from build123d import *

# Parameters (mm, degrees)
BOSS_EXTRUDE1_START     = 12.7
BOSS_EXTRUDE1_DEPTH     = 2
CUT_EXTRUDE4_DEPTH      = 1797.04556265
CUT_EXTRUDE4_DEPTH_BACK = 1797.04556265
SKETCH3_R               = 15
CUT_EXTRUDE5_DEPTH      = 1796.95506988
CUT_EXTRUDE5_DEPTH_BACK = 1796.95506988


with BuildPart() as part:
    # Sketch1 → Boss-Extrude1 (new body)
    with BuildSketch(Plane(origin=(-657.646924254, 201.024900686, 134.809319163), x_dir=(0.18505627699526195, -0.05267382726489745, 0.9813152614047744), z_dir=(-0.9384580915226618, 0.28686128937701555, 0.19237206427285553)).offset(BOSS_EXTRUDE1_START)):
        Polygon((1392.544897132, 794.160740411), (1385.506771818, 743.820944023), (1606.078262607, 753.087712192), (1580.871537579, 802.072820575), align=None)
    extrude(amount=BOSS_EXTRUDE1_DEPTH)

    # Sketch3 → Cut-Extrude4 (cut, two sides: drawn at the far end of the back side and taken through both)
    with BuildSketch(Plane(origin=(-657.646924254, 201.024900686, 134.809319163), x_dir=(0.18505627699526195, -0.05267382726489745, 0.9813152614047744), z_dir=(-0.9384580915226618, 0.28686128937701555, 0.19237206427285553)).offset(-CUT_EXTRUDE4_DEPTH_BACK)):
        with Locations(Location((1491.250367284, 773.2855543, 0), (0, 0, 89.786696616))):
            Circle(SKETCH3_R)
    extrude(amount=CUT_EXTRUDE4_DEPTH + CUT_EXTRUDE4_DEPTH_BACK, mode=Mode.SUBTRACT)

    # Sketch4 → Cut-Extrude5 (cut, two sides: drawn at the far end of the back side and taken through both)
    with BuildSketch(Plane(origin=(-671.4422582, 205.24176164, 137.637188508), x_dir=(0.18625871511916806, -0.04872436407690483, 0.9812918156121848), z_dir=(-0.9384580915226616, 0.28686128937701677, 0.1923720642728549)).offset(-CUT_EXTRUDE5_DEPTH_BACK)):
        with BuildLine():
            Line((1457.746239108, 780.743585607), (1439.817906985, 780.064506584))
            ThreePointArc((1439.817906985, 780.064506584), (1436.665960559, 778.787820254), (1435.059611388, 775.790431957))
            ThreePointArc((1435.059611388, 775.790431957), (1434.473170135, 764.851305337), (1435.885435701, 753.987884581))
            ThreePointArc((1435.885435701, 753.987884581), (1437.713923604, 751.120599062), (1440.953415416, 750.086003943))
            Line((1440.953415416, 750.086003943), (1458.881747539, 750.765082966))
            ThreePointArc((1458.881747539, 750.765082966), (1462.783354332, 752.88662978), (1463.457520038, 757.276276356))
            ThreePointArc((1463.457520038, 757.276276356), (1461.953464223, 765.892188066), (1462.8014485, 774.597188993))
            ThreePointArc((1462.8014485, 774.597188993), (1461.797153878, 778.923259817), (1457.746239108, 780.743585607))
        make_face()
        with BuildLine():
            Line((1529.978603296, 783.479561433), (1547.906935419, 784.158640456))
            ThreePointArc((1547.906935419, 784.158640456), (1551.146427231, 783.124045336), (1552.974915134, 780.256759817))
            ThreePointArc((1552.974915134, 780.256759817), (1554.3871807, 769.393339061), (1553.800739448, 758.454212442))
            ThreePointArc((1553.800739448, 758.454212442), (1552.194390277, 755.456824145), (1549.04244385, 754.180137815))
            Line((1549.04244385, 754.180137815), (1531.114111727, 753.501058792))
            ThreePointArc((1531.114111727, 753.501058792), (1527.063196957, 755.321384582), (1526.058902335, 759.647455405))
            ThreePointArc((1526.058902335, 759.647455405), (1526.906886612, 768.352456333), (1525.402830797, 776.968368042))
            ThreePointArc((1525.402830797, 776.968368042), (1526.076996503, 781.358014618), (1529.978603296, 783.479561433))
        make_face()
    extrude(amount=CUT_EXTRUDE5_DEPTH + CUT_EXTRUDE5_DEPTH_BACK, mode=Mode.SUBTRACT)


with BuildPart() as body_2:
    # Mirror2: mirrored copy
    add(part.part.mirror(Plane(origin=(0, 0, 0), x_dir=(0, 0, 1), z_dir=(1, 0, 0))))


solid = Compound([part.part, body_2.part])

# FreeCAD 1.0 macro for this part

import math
import FreeCAD as App
import Part
import Sketcher

doc = App.newDocument("Part")
body = doc.addObject("PartDesign::Body", "Body")

# Sketch on an angled plane
sketch1 = body.newObject("Sketcher::SketchObject", "Sketch")
sketch1.Placement = App.Placement(App.Vector(-669.565342, 204.668039, 137.252444), App.Rotation(App.Vector(0.185056277, -0.052673827, 0.981315261), App.Vector(0.291634334, 0.956522905, -0.003653303), App.Vector(-0.938458092, 0.286861289, 0.192372064), "ZXY"))
sketch1.addGeometry(Part.LineSegment(App.Vector(1392.544896, 794.16074, 0), App.Vector(1385.506771, 743.820944, 0)), False)
sketch1.addGeometry(Part.LineSegment(App.Vector(1385.506771, 743.820944, 0), App.Vector(1606.078261, 753.087712, 0)), False)
sketch1.addGeometry(Part.LineSegment(App.Vector(1606.078261, 753.087712, 0), App.Vector(1580.871536, 802.07282, 0)), False)
sketch1.addGeometry(Part.LineSegment(App.Vector(1580.871536, 802.07282, 0), App.Vector(1392.544896, 794.16074, 0)), False)
sketch1.addConstraint(Sketcher.Constraint("Coincident", 0, 2, 1, 1))
sketch1.addConstraint(Sketcher.Constraint("Coincident", 1, 2, 2, 1))
sketch1.addConstraint(Sketcher.Constraint("Coincident", 2, 2, 3, 1))
sketch1.addConstraint(Sketcher.Constraint("Coincident", 3, 2, 0, 1))
sketch1.addConstraint(Sketcher.Constraint("Parallel", 1, 3))
sketch1.addConstraint(Sketcher.Constraint("Distance", 3, 188.49277))
sketch1.addConstraint(Sketcher.Constraint("DistanceX", -1, 1, 0, 2, 1385.506771))
sketch1.addConstraint(Sketcher.Constraint("DistanceX", -1, 1, 1, 2, 1606.078261))
sketch1.addConstraint(Sketcher.Constraint("DistanceY", -1, 1, 2, 2, 802.07282))
sketch1.addConstraint(Sketcher.Constraint("DistanceY", -1, 1, 3, 2, 794.16074))
sketch1.addConstraint(Sketcher.Constraint("DistanceY", 1, 2, 2, 2, 48.985108))
sketch1.addConstraint(Sketcher.Constraint("Distance", 0, 50.829424))
pad1 = body.newObject("PartDesign::Pad", "Pad")
pad1.Profile = sketch1
pad1.Length = 2

# Sketch on an angled plane
sketch2 = body.newObject("Sketcher::SketchObject", "Sketch001")
sketch2.Placement = App.Placement(App.Vector(-657.646925, 201.0249, 134.809319), App.Rotation(App.Vector(0.185056277, -0.052673827, 0.981315261), App.Vector(0.291634334, 0.956522905, -0.003653303), App.Vector(-0.938458092, 0.286861289, 0.192372064), "ZXY"))
sketch2.addGeometry(Part.Circle(App.Vector(1491.250366, 773.285554, 0), App.Vector(0, 0, 1), 15), False)
sketch2.addConstraint(Sketcher.Constraint("Diameter", 0, 30.0))
sketch2.addConstraint(Sketcher.Constraint("DistanceX", -1, 1, 0, 3, 1491.250366))
sketch2.addConstraint(Sketcher.Constraint("DistanceY", -1, 1, 0, 3, 773.285554))
pocket1 = body.newObject("PartDesign::Pocket", "Pocket")
pocket1.Profile = sketch2
pocket1.Type = "ThroughAll"
pocket1.Midplane = True

# Sketch on an angled plane
sketch3 = body.newObject("Sketcher::SketchObject", "Sketch002")
sketch3.Placement = App.Placement(App.Vector(-671.442259, 205.241761, 137.637188), App.Rotation(App.Vector(0.186258715, -0.048724364, 0.981291816), App.Vector(0.290867842, 0.956732219, -0.007704641), App.Vector(-0.938458092, 0.286861289, 0.192372064), "ZXY"))
sketch3.addGeometry(Part.LineSegment(App.Vector(1457.74624, 780.743587, 0), App.Vector(1439.817908, 780.064508, 0)), False)
sketch3.addGeometry(Part.ArcOfCircle(Part.Circle(App.Vector(1440.007159, 775.06809, 0), App.Vector(0, 0, 1), 5), math.radians(92.16918), math.radians(171.693498)), False)
sketch3.addGeometry(Part.ArcOfCircle(Part.Circle(App.Vector(1494.430176, 767.122323, 0), App.Vector(0, 0, 1), 60), math.radians(171.693498), math.radians(192.644861)), False)
sketch3.addGeometry(Part.ArcOfCircle(Part.Circle(App.Vector(1440.764165, 755.082422, 0), App.Vector(0, 0, 1), 5), math.radians(-167.355139), math.radians(-87.83082)), False)
sketch3.addGeometry(Part.LineSegment(App.Vector(1440.953416, 750.086005, 0), App.Vector(1458.881749, 750.765084, 0)), False)
sketch3.addGeometry(Part.ArcOfCircle(Part.Circle(App.Vector(1458.692497, 755.761501, 0), App.Vector(0, 0, 1), 5), math.radians(-87.83082), math.radians(17.635189)), False)
sketch3.addGeometry(Part.ArcOfCircle(Part.Circle(App.Vector(1494.430176, 767.122323, 0), App.Vector(0, 0, 1), 32.5), math.radians(166.70317), math.radians(197.635189)), False)
sketch3.addGeometry(Part.ArcOfCircle(Part.Circle(App.Vector(1457.935492, 775.747169, 0), App.Vector(0, 0, 1), 5), math.radians(-13.29683), math.radians(92.16918)), False)
sketch3.addGeometry(Part.LineSegment(App.Vector(1547.906937, 784.158641, 0), App.Vector(1529.978604, 783.479562, 0)), False)
sketch3.addGeometry(Part.ArcOfCircle(Part.Circle(App.Vector(1530.167856, 778.483145, 0), App.Vector(0, 0, 1), 5), math.radians(92.16918), math.radians(197.635189)), False)
sketch3.addGeometry(Part.ArcOfCircle(Part.Circle(App.Vector(1494.430176, 767.122323, 0), App.Vector(0, 0, 1), 32.5), math.radians(-13.29683), math.radians(17.635189)), False)
sketch3.addGeometry(Part.ArcOfCircle(Part.Circle(App.Vector(1530.924861, 758.497477, 0), App.Vector(0, 0, 1), 5), math.radians(166.70317), math.radians(272.16918)), False)
sketch3.addGeometry(Part.LineSegment(App.Vector(1531.114113, 753.50106, 0), App.Vector(1549.042445, 754.180139, 0)), False)
sketch3.addGeometry(Part.ArcOfCircle(Part.Circle(App.Vector(1548.853194, 759.176556, 0), App.Vector(0, 0, 1), 5), math.radians(-87.83082), math.radians(-8.306502)), False)
sketch3.addGeometry(Part.ArcOfCircle(Part.Circle(App.Vector(1494.430176, 767.122323, 0), App.Vector(0, 0, 1), 60), math.radians(-8.306502), math.radians(12.644861)), False)
sketch3.addGeometry(Part.ArcOfCircle(Part.Circle(App.Vector(1548.096188, 779.162224, 0), App.Vector(0, 0, 1), 5), math.radians(12.644861), math.radians(92.169179)), False)
sketch3.addConstraint(Sketcher.Constraint("Tangent", 0, 2, 1, 1))
sketch3.addConstraint(Sketcher.Constraint("Tangent", 1, 2, 2, 1))
sketch3.addConstraint(Sketcher.Constraint("Tangent", 2, 2, 3, 1))
sketch3.addConstraint(Sketcher.Constraint("Tangent", 3, 2, 4, 1))
sketch3.addConstraint(Sketcher.Constraint("Tangent", 4, 2, 5, 1))
sketch3.addConstraint(Sketcher.Constraint("Tangent", 5, 2, 6, 2))
sketch3.addConstraint(Sketcher.Constraint("Tangent", 6, 1, 7, 1))
sketch3.addConstraint(Sketcher.Constraint("Tangent", 7, 2, 0, 1))
sketch3.addConstraint(Sketcher.Constraint("Tangent", 8, 2, 9, 1))
sketch3.addConstraint(Sketcher.Constraint("Tangent", 9, 2, 10, 2))
sketch3.addConstraint(Sketcher.Constraint("Tangent", 10, 1, 11, 1))
sketch3.addConstraint(Sketcher.Constraint("Tangent", 11, 2, 12, 1))
sketch3.addConstraint(Sketcher.Constraint("Tangent", 12, 2, 13, 1))
sketch3.addConstraint(Sketcher.Constraint("Tangent", 13, 2, 14, 1))
sketch3.addConstraint(Sketcher.Constraint("Tangent", 14, 2, 15, 1))
sketch3.addConstraint(Sketcher.Constraint("Tangent", 15, 2, 8, 1))
sketch3.addConstraint(Sketcher.Constraint("Coincident", 6, 3, 2, 3))
sketch3.addConstraint(Sketcher.Constraint("Coincident", 10, 3, 2, 3))
sketch3.addConstraint(Sketcher.Constraint("Coincident", 14, 3, 2, 3))
sketch3.addConstraint(Sketcher.Constraint("Equal", 1, 3))
sketch3.addConstraint(Sketcher.Constraint("Equal", 3, 5))
sketch3.addConstraint(Sketcher.Constraint("Equal", 5, 7))
sketch3.addConstraint(Sketcher.Constraint("Equal", 7, 9))
sketch3.addConstraint(Sketcher.Constraint("Equal", 6, 10))
sketch3.addConstraint(Sketcher.Constraint("Equal", 9, 11))
sketch3.addConstraint(Sketcher.Constraint("Equal", 11, 13))
sketch3.addConstraint(Sketcher.Constraint("Equal", 2, 14))
sketch3.addConstraint(Sketcher.Constraint("Equal", 13, 15))
sketch3.addConstraint(Sketcher.Constraint("Parallel", 0, 4))
sketch3.addConstraint(Sketcher.Constraint("Parallel", 4, 8))
sketch3.addConstraint(Sketcher.Constraint("Parallel", 8, 12))
sketch3.addConstraint(Sketcher.Constraint("Equal", 0, 4))
sketch3.addConstraint(Sketcher.Constraint("Equal", 4, 8))
sketch3.addConstraint(Sketcher.Constraint("Equal", 8, 12))
sketch3.addConstraint(Sketcher.Constraint("Radius", 1, 5.0))
sketch3.addConstraint(Sketcher.Constraint("Radius", 2, 60.0))
sketch3.addConstraint(Sketcher.Constraint("Radius", 6, 32.5))
sketch3.addConstraint(Sketcher.Constraint("DistanceY", -1, 1, 5, 3, 755.761501))
sketch3.addConstraint(Sketcher.Constraint("DistanceY", 3, 3, 2, 3, 12.039901))
sketch3.addConstraint(Sketcher.Constraint("DistanceY", 6, 1, 1, 3, 0.4709))
sketch3.addConstraint(Sketcher.Constraint("DistanceX", -1, 1, 1, 3, 1440.007159))
pocket2 = body.newObject("PartDesign::Pocket", "Pocket001")
pocket2.Profile = sketch3
pocket2.Type = "ThroughAll"
pocket2.Midplane = True
body2 = doc.addObject("PartDesign::Body", "Body001")
doc.recompute()

mirroring = doc.addObject("Part::Mirroring", "Mirroring")
mirroring.Source = body
mirroring.Base = App.Vector(0, 0, 0)
mirroring.Normal = App.Vector(1, 0, 0)
body2.BaseFeature = mirroring
doc.recompute()
mirroring.Visibility = False

doc.recompute()
